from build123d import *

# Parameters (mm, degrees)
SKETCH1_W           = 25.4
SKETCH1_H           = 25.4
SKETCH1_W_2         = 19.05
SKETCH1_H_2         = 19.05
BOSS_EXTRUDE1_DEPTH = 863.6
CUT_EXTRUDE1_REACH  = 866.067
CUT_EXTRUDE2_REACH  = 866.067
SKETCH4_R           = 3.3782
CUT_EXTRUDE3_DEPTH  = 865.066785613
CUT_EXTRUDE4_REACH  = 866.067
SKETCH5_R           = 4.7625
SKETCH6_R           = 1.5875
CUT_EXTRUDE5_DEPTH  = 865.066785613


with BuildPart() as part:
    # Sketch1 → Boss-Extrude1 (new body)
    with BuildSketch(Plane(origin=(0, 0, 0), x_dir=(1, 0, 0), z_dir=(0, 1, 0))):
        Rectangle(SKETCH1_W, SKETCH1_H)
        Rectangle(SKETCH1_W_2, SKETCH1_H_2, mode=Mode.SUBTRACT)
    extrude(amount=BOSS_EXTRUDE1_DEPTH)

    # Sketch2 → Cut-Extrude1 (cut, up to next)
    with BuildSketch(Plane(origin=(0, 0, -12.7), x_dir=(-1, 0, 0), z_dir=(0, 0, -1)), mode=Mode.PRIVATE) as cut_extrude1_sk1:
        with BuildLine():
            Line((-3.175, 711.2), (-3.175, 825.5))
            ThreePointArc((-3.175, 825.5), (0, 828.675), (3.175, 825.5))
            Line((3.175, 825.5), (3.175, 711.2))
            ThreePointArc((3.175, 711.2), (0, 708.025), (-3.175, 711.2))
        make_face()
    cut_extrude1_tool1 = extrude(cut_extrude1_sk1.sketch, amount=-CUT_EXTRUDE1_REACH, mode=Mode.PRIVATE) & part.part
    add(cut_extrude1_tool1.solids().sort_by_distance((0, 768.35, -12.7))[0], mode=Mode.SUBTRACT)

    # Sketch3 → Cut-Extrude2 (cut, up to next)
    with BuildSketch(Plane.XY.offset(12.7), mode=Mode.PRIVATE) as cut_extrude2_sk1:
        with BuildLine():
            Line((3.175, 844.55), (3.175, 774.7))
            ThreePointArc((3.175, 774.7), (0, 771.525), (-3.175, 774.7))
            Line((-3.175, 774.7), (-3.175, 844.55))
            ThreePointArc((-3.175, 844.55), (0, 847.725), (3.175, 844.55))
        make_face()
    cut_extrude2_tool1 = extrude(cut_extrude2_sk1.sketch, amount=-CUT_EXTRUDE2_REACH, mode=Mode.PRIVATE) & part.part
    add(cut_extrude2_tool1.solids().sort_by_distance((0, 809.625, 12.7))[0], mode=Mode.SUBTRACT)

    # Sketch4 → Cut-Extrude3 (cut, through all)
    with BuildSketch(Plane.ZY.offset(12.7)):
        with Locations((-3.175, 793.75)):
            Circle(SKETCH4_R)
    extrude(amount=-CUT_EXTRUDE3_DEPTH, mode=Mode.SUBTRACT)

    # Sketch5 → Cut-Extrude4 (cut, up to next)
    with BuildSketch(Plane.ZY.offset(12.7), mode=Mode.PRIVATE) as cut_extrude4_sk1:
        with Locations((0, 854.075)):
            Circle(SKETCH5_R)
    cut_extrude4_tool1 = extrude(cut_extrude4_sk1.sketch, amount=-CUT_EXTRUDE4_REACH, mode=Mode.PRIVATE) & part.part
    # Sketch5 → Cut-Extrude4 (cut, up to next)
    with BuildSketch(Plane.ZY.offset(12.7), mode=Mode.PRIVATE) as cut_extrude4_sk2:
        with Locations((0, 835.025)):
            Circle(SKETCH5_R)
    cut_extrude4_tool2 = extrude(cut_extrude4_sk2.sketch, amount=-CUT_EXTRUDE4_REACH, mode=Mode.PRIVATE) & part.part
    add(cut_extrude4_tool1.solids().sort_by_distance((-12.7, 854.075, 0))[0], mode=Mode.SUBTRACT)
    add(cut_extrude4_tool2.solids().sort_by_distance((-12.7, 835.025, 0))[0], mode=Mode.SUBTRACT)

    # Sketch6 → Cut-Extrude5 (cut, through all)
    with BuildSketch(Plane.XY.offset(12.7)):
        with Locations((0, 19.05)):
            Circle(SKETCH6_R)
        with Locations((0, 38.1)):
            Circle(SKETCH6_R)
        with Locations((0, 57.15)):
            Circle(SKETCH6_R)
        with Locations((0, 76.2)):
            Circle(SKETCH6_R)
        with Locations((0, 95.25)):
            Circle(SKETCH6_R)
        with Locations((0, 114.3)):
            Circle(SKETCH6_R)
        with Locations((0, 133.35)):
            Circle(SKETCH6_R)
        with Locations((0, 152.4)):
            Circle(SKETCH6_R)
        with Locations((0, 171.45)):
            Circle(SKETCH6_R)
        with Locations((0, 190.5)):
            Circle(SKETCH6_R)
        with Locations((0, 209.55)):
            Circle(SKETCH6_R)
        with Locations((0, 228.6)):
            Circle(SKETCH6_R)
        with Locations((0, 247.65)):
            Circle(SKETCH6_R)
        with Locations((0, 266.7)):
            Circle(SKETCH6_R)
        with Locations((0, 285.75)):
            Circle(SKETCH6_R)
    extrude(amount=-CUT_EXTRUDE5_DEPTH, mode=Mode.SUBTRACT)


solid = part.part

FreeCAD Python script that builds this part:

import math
import FreeCAD as App
import Part
import Sketcher

V = App.Vector
Q = App.Units.Quantity


def add_polygon(sketch, points):
    """Adds a closed chain of lines whose ends are joined by coincident constraints."""
    first, n = sketch.GeometryCount, len(points)
    for a, b in zip(points, points[1:] + points[:1]):
        sketch.addGeometry(Part.LineSegment(App.Vector(*a, 0), App.Vector(*b, 0)), False)
    for i in range(n):
        sketch.addConstraint(Sketcher.Constraint("Coincident", first + i, 2, first + (i + 1) % n, 1))

doc = App.newDocument("Part")
body = doc.addObject("PartDesign::Body", "Body")

# Sketch on XZ plane
sketch1 = body.newObject("Sketcher::SketchObject", "Sketch")
sketch1.AttachmentSupport = (doc.getObject("XZ_Plane"), [""])
sketch1.MapMode = "FlatFace"
add_polygon(sketch1, [(-12.7, -12.7), (-12.7, 12.7), (12.7, 12.7), (12.7, -12.7)])  # lines 0-3
add_polygon(sketch1, [(9.525, 9.525), (-9.525, 9.525), (-9.525, -9.525), (9.525, -9.525)])  # lines 4-7
sketch1.addConstraint(Sketcher.Constraint("Vertical", 0))
sketch1.addConstraint(Sketcher.Constraint("Horizontal", 1))
sketch1.addConstraint(Sketcher.Constraint("Vertical", 2))
sketch1.addConstraint(Sketcher.Constraint("Horizontal", 3))
sketch1.addConstraint(Sketcher.Constraint("Horizontal", 4))
sketch1.addConstraint(Sketcher.Constraint("Vertical", 5))
sketch1.addConstraint(Sketcher.Constraint("Horizontal", 6))
sketch1.addConstraint(Sketcher.Constraint("Vertical", 7))
sketch1.addConstraint(Sketcher.Constraint("Symmetric", 0, 2, 2, 2, -1, 1))
sketch1.addConstraint(Sketcher.Constraint("Symmetric", 4, 2, 6, 2, -1, 1))
sketch1.addConstraint(Sketcher.Constraint("Equal", 3, 0))
sketch1.addConstraint(Sketcher.Constraint("Equal", 6, 5))
sketch1.addConstraint(Sketcher.Constraint("DistanceX", 1, 1, 1, 2, Q("1 in")))
sketch1.addConstraint(Sketcher.Constraint("DistanceX", 4, 2, 4, 1, Q("0.75 in")))
pad1 = body.newObject("PartDesign::Pad", "Pad")
pad1.Profile = sketch1
pad1.Length = Q("34 in")
pad1.Reversed = True

# Sketch on XY plane
sketch2 = body.newObject("Sketcher::SketchObject", "Sketch001")
sketch2.AttachmentSupport = (doc.getObject("XY_Plane"), [""])
sketch2.MapMode = "FlatFace"
sketch2.AttachmentOffset = App.Placement(V(0, 0, -0.5 * 25.4), App.Rotation())
sketch2.addGeometry(Part.LineSegment(V(3.175, 825.5, 0), V(3.175, 711.2, 0)), False)
sketch2.addGeometry(Part.ArcOfCircle(Part.Circle(V(0, 711.2, 0), V(0, 0, 1), 3.175), math.radians(180), math.radians(360)), False)
sketch2.addGeometry(Part.LineSegment(V(-3.175, 711.2, 0), V(-3.175, 825.5, 0)), False)
sketch2.addGeometry(Part.ArcOfCircle(Part.Circle(V(0, 825.5, 0), V(0, 0, 1), 3.175), math.radians(0), math.radians(180)), False)
sketch2.addConstraint(Sketcher.Constraint("Tangent", 0, 2, 1, 2))
sketch2.addConstraint(Sketcher.Constraint("Tangent", 1, 1, 2, 1))
sketch2.addConstraint(Sketcher.Constraint("Tangent", 2, 2, 3, 2))
sketch2.addConstraint(Sketcher.Constraint("Tangent", 3, 1, 0, 1))
sketch2.addConstraint(Sketcher.Constraint("Vertical", 0))
sketch2.addConstraint(Sketcher.Constraint("Vertical", 2))
sketch2.addConstraint(Sketcher.Constraint("PointOnObject", 1, 3, -2))
sketch2.addConstraint(Sketcher.Constraint("DistanceY", 0, 2, 0, 1, Q("4.5 in")))
sketch2.addConstraint(Sketcher.Constraint("DistanceY", -1, 1, 1, 3, Q("28 in")))
sketch2.addConstraint(Sketcher.Constraint("Radius", 1, Q("0.125 in")))
pocket1 = body.newObject("PartDesign::Pocket", "Pocket")
pocket1.Profile = sketch2
pocket1.Type = "UpToFirst"
pocket1.Reversed = True

# Sketch on XY plane
sketch3 = body.newObject("Sketcher::SketchObject", "Sketch002")
sketch3.AttachmentSupport = (doc.getObject("XY_Plane"), [""])
sketch3.MapMode = "FlatFace"
sketch3.AttachmentOffset = App.Placement(V(0, 0, 0.5 * 25.4), App.Rotation())
sketch3.addGeometry(Part.LineSegment(V(3.175, 774.7, 0), V(3.175, 844.55, 0)), False)
sketch3.addGeometry(Part.ArcOfCircle(Part.Circle(V(0, 844.55, 0), V(0, 0, 1), 3.175), math.radians(0), math.radians(180)), False)
sketch3.addGeometry(Part.LineSegment(V(-3.175, 844.55, 0), V(-3.175, 774.7, 0)), False)
sketch3.addGeometry(Part.ArcOfCircle(Part.Circle(V(0, 774.7, 0), V(0, 0, 1), 3.175), math.radians(180), math.radians(360)), False)
sketch3.addConstraint(Sketcher.Constraint("Tangent", 0, 2, 1, 1))
sketch3.addConstraint(Sketcher.Constraint("Tangent", 1, 2, 2, 1))
sketch3.addConstraint(Sketcher.Constraint("Tangent", 2, 2, 3, 1))
sketch3.addConstraint(Sketcher.Constraint("Tangent", 3, 2, 0, 1))
sketch3.addConstraint(Sketcher.Constraint("Vertical", 0))
sketch3.addConstraint(Sketcher.Constraint("Vertical", 2))
sketch3.addConstraint(Sketcher.Constraint("PointOnObject", 1, 3, -2))
sketch3.addConstraint(Sketcher.Constraint("Radius", 1, Q("0.125 in")))
sketch3.addConstraint(Sketcher.Constraint("DistanceY", 0, 1, 0, 2, Q("2.75 in")))
sketch3.addConstraint(Sketcher.Constraint("DistanceY", -1, 1, 3, 3, Q("30.5 in")))
pocket2 = body.newObject("PartDesign::Pocket", "Pocket001")
pocket2.Profile = sketch3
pocket2.Type = "UpToFirst"

# Sketch on YZ plane
sketch4 = body.newObject("Sketcher::SketchObject", "Sketch003")
sketch4.AttachmentSupport = (doc.getObject("YZ_Plane"), [""])
sketch4.MapMode = "FlatFace"
sketch4.AttachmentOffset = App.Placement(V(0, 0, -0.5 * 25.4), App.Rotation())
sketch4.addGeometry(Part.Circle(V(793.75, -3.175, 0), V(0, 0, 1), 3.3782), False)
sketch4.addConstraint(Sketcher.Constraint("Diameter", 0, Q("0.266 in")))
sketch4.addConstraint(Sketcher.Constraint("DistanceX", -1, 1, 0, 3, Q("31.25 in")))
sketch4.addConstraint(Sketcher.Constraint("DistanceY", 0, 3, -1, 1, Q("0.125 in")))
pocket3 = body.newObject("PartDesign::Pocket", "Pocket002")
pocket3.Profile = sketch4
pocket3.Type = "ThroughAll"
pocket3.Reversed = True

# Sketch on YZ plane
sketch5 = body.newObject("Sketcher::SketchObject", "Sketch004")
sketch5.AttachmentSupport = (doc.getObject("YZ_Plane"), [""])
sketch5.MapMode = "FlatFace"
sketch5.AttachmentOffset = App.Placement(V(0, 0, -0.5 * 25.4), App.Rotation())
sketch5.addGeometry(Part.Circle(V(854.075, 0, 0), V(0, 0, 1), 4.7625), False)
sketch5.addConstraint(Sketcher.Constraint("PointOnObject", 0, 3, -1))
sketch5.addConstraint(Sketcher.Constraint("Diameter", 0, Q("0.375 in")))
sketch5.addConstraint(Sketcher.Constraint("DistanceX", -1, 1, 0, 3, Q("33.625 in")))
pocket4 = body.newObject("PartDesign::Pocket", "Pocket003")
pocket4.Profile = sketch5
pocket4.Type = "UpToFirst"
pocket4.Reversed = True

# Sketch on YZ plane
sketch6 = body.newObject("Sketcher::SketchObject", "Sketch005")
sketch6.AttachmentSupport = (doc.getObject("YZ_Plane"), [""])
sketch6.MapMode = "FlatFace"
sketch6.AttachmentOffset = App.Placement(V(0, 0, -0.5 * 25.4), App.Rotation())
sketch6.addGeometry(Part.Circle(V(835.025, 0, 0), V(0, 0, 1), 4.7625), False)
sketch6.addConstraint(Sketcher.Constraint("PointOnObject", 0, 3, -1))
sketch6.addConstraint(Sketcher.Constraint("Diameter", 0, Q("0.375 in")))
sketch6.addConstraint(Sketcher.Constraint("DistanceX", -1, 1, 0, 3, Q("32.875 in")))
pocket5 = body.newObject("PartDesign::Pocket", "Pocket004")
pocket5.Profile = sketch6
pocket5.Type = "UpToFirst"
pocket5.Reversed = True

# Sketch on XY plane
sketch7 = body.newObject("Sketcher::SketchObject", "Sketch006")
sketch7.AttachmentSupport = (doc.getObject("XY_Plane"), [""])
sketch7.MapMode = "FlatFace"
sketch7.AttachmentOffset = App.Placement(V(0, 0, 0.5 * 25.4), App.Rotation())
sketch7.addGeometry(Part.Circle(V(0, 19.05, 0), V(0, 0, 1), 1.5875), False)
sketch7.addGeometry(Part.Circle(V(0, 38.1, 0), V(0, 0, 1), 1.5875), False)
sketch7.addGeometry(Part.Circle(V(0, 57.15, 0), V(0, 0, 1), 1.5875), False)
sketch7.addGeometry(Part.Circle(V(0, 76.2, 0), V(0, 0, 1), 1.5875), False)
sketch7.addGeometry(Part.Circle(V(0, 95.25, 0), V(0, 0, 1), 1.5875), False)
sketch7.addGeometry(Part.Circle(V(0, 114.3, 0), V(0, 0, 1), 1.5875), False)
sketch7.addGeometry(Part.Circle(V(0, 133.35, 0), V(0, 0, 1), 1.5875), False)
sketch7.addGeometry(Part.Circle(V(0, 152.4, 0), V(0, 0, 1), 1.5875), False)
sketch7.addGeometry(Part.Circle(V(0, 171.45, 0), V(0, 0, 1), 1.5875), False)
sketch7.addGeometry(Part.Circle(V(0, 190.5, 0), V(0, 0, 1), 1.5875), False)
sketch7.addGeometry(Part.Circle(V(0, 209.55, 0), V(0, 0, 1), 1.5875), False)
sketch7.addGeometry(Part.Circle(V(0, 228.6, 0), V(0, 0, 1), 1.5875), False)
sketch7.addGeometry(Part.Circle(V(0, 247.65, 0), V(0, 0, 1), 1.5875), False)
sketch7.addGeometry(Part.Circle(V(0, 266.7, 0), V(0, 0, 1), 1.5875), False)
sketch7.addGeometry(Part.Circle(V(0, 285.75, 0), V(0, 0, 1), 1.5875), False)
sketch7.addConstraint(Sketcher.Constraint("Equal", 0, 1))
sketch7.addConstraint(Sketcher.Constraint("Equal", 1, 2))
sketch7.addConstraint(Sketcher.Constraint("Equal", 2, 3))
sketch7.addConstraint(Sketcher.Constraint("Equal", 3, 4))
sketch7.addConstraint(Sketcher.Constraint("Equal", 4, 5))
sketch7.addConstraint(Sketcher.Constraint("Equal", 5, 6))
sketch7.addConstraint(Sketcher.Constraint("Equal", 6, 7))
sketch7.addConstraint(Sketcher.Constraint("Equal", 7, 8))
sketch7.addConstraint(Sketcher.Constraint("Equal", 8, 9))
sketch7.addConstraint(Sketcher.Constraint("Equal", 9, 10))
sketch7.addConstraint(Sketcher.Constraint("Equal", 10, 11))
sketch7.addConstraint(Sketcher.Constraint("Equal", 11, 12))
sketch7.addConstraint(Sketcher.Constraint("Equal", 12, 13))
sketch7.addConstraint(Sketcher.Constraint("Equal", 13, 14))
sketch7.addConstraint(Sketcher.Constraint("PointOnObject", 0, 3, -2))
sketch7.addConstraint(Sketcher.Constraint("PointOnObject", 1, 3, -2))
sketch7.addConstraint(Sketcher.Constraint("PointOnObject", 2, 3, -2))
sketch7.addConstraint(Sketcher.Constraint("PointOnObject", 3, 3, -2))
sketch7.addConstraint(Sketcher.Constraint("PointOnObject", 4, 3, -2))
sketch7.addConstraint(Sketcher.Constraint("PointOnObject", 5, 3, -2))
sketch7.addConstraint(Sketcher.Constraint("PointOnObject", 6, 3, -2))
sketch7.addConstraint(Sketcher.Constraint("PointOnObject", 7, 3, -2))
sketch7.addConstraint(Sketcher.Constraint("PointOnObject", 8, 3, -2))
sketch7.addConstraint(Sketcher.Constraint("PointOnObject", 9, 3, -2))
sketch7.addConstraint(Sketcher.Constraint("PointOnObject", 10, 3, -2))
sketch7.addConstraint(Sketcher.Constraint("PointOnObject", 11, 3, -2))
sketch7.addConstraint(Sketcher.Constraint("PointOnObject", 12, 3, -2))
sketch7.addConstraint(Sketcher.Constraint("PointOnObject", 13, 3, -2))
sketch7.addConstraint(Sketcher.Constraint("PointOnObject", 14, 3, -2))
sketch7.addConstraint(Sketcher.Constraint("Diameter", 0, Q("0.125 in")))
sketch7.addConstraint(Sketcher.Constraint("DistanceY", -1, 1, 3, 3, Q("3 in")))
sketch7.addConstraint(Sketcher.Constraint("DistanceY", -1, 1, 7, 3, Q("6 in")))
sketch7.addConstraint(Sketcher.Constraint("DistanceY", -1, 1, 11, 3, Q("9 in")))
sketch7.addConstraint(Sketcher.Constraint("DistanceY", 0, 3, 4, 3, Q("3 in")))
sketch7.addConstraint(Sketcher.Constraint("DistanceY", 1, 3, 5, 3, Q("3 in")))
sketch7.addConstraint(Sketcher.Constraint("DistanceY", 2, 3, 6, 3, Q("3 in")))
sketch7.addConstraint(Sketcher.Constraint("DistanceY", 4, 3, 8, 3, Q("3 in")))
sketch7.addConstraint(Sketcher.Constraint("DistanceY", 5, 3, 9, 3, Q("3 in")))
sketch7.addConstraint(Sketcher.Constraint("DistanceY", 6, 3, 10, 3, Q("3 in")))
sketch7.addConstraint(Sketcher.Constraint("DistanceY", 8, 3, 12, 3, Q("3 in")))
sketch7.addConstraint(Sketcher.Constraint("DistanceY", 9, 3, 13, 3, Q("3 in")))
sketch7.addConstraint(Sketcher.Constraint("DistanceY", 10, 3, 14, 3, Q("3 in")))
sketch7.addConstraint(Sketcher.Constraint("DistanceY", -1, 1, 1, 3, Q("1.5 in")))
sketch7.addConstraint(Sketcher.Constraint("DistanceY", 0, 3, 2, 3, Q("1.5 in")))
sketch7.addConstraint(Sketcher.Constraint("DistanceY", -1, 1, 0, 3, Q("0.75 in")))
pocket6 = body.newObject("PartDesign::Pocket", "Pocket005")
pocket6.Profile = sketch7
pocket6.Type = "ThroughAll"

doc.recompute()
